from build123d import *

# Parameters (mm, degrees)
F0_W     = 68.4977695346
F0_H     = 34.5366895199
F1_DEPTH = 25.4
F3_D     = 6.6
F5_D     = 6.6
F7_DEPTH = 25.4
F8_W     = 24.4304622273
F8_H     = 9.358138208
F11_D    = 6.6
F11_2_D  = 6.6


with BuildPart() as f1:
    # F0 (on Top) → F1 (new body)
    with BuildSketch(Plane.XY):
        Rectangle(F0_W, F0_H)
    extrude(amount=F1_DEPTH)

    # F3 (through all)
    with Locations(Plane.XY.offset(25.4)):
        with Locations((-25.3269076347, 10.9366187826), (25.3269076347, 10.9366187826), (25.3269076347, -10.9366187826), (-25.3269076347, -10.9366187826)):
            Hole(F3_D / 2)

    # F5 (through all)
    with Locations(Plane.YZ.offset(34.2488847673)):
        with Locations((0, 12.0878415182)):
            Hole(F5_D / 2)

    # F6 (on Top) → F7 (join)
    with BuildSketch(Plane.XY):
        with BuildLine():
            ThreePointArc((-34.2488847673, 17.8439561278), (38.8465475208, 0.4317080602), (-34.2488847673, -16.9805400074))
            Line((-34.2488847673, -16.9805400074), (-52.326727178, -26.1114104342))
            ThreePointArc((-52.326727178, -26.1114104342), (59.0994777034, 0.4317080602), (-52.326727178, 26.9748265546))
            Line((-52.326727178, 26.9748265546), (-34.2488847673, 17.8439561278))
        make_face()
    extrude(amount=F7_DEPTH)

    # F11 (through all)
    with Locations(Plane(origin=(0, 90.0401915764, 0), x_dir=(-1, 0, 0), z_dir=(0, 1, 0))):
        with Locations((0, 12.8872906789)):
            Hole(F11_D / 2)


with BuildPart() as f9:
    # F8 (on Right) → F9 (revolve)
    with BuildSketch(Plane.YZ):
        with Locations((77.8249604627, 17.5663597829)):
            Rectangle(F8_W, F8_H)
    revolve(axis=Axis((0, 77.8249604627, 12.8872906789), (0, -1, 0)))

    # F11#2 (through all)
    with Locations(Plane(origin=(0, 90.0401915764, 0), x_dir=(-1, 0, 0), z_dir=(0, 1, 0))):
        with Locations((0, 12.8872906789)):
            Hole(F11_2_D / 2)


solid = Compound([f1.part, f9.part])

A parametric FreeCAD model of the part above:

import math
import FreeCAD as App
import Part
import Sketcher
from FreeCAD import Vector

doc = App.newDocument("Part")
body = doc.addObject("PartDesign::Body", "Body")

# Sketch on XY plane
sketch1 = body.newObject("Sketcher::SketchObject", "Sketch")
sketch1.AttachmentSupport = (doc.getObject("XY_Plane"), [""])
sketch1.MapMode = "FlatFace"
sketch1.addGeometry([
    Part.LineSegment(Vector(-34, 17, 0), Vector(-34, -17, 0)),
    Part.LineSegment(Vector(-34, -17, 0), Vector(34, -17, 0)),
    Part.LineSegment(Vector(34, -17, 0), Vector(34, 17, 0)),
    Part.LineSegment(Vector(34, 17, 0), Vector(-34, 17, 0)),
], False)
sketch1.addConstraint([
    Sketcher.Constraint("Coincident", 0, 2, 1, 1),
    Sketcher.Constraint("Coincident", 1, 2, 2, 1),
    Sketcher.Constraint("Coincident", 2, 2, 3, 1),
    Sketcher.Constraint("Coincident", 3, 2, 0, 1),
    Sketcher.Constraint("Vertical", 0),
    Sketcher.Constraint("Horizontal", 1),
    Sketcher.Constraint("Vertical", 2),
    Sketcher.Constraint("Horizontal", 3),
    Sketcher.Constraint("Symmetric", 0, 2, 2, 2, -1, 1),
    Sketcher.Constraint("DistanceX", 1, 1, 1, 2, 68.49777),
    Sketcher.Constraint("DistanceY", 0, 2, 0, 1, 34.53669),
])
pad1 = body.newObject("PartDesign::Pad", "Pad")
pad1.Profile = sketch1
pad1.Length = 25.4

# Sketch on XY plane
sketch2 = body.newObject("Sketcher::SketchObject", "Sketch001")
sketch2.AttachmentSupport = (doc.getObject("XY_Plane"), [""])
sketch2.MapMode = "FlatFace"
sketch2.AttachmentOffset = App.Placement(Vector(0, 0, 25.4), App.Rotation())
sketch2.addGeometry([
    Part.Circle(Vector(-25.3, 10.9, 0), Vector(0, 0, 1), 3.3),
    Part.Circle(Vector(25.3, 10.9, 0), Vector(0, 0, 1), 3.3),
    Part.Circle(Vector(25.3, -10.9, 0), Vector(0, 0, 1), 3.3),
    Part.Circle(Vector(-25.3, -10.9, 0), Vector(0, 0, 1), 3.3),
], False)
sketch2.addConstraint([
    Sketcher.Constraint("Equal", 0, 1),
    Sketcher.Constraint("Equal", 1, 2),
    Sketcher.Constraint("Equal", 2, 3),
    Sketcher.Constraint("Symmetric", 0, 3, 2, 3, -1, 1),
    Sketcher.Constraint("Symmetric", 1, 3, 3, 3, -1, 1),
    Sketcher.Constraint("Symmetric", 0, 3, 1, 3, -2),
    Sketcher.Constraint("Diameter", 0, 6.6),
    Sketcher.Constraint("DistanceY", -1, 1, 0, 3, 10.936619),
    Sketcher.Constraint("DistanceX", 0, 3, -1, 1, 25.326908),
])
doc.recompute()
hole = body.newObject("PartDesign::Hole", "Hole")
hole.Profile = sketch2
hole.ThreadType = "None"
hole.Diameter = 6.6
hole.DepthType = "ThroughAll"

# Sketch on YZ plane
sketch3 = body.newObject("Sketcher::SketchObject", "Sketch002")
sketch3.AttachmentSupport = (doc.getObject("YZ_Plane"), [""])
sketch3.MapMode = "FlatFace"
sketch3.AttachmentOffset = App.Placement(Vector(0, 0, 34.248885), App.Rotation())
sketch3.addGeometry(Part.Circle(Vector(0, 12.1, 0), Vector(0, 0, 1), 3.3), False)
sketch3.addConstraint([
    Sketcher.Constraint("PointOnObject", 0, 3, -2),
    Sketcher.Constraint("Diameter", 0, 6.6),
    Sketcher.Constraint("DistanceY", -1, 1, 0, 3, 12.087842),
])
doc.recompute()
hole2 = body.newObject("PartDesign::Hole", "Hole001")
hole2.Profile = sketch3
hole2.ThreadType = "None"
hole2.Diameter = 6.6
hole2.DepthType = "ThroughAll"

# Sketch on XY plane
sketch4 = body.newObject("Sketcher::SketchObject", "Sketch003")
sketch4.AttachmentSupport = (doc.getObject("XY_Plane"), [""])
sketch4.MapMode = "FlatFace"
sketch4.addGeometry([
    Part.ArcOfCircle(Part.Circle(Vector(0, 0, 0), Vector(0, 0, 1), 39), math.radians(-153), math.radians(153)),
    Part.LineSegment(Vector(-34, -17, 0), Vector(-52, -26, 0)),
    Part.ArcOfCircle(Part.Circle(Vector(0, 0, 0), Vector(0, 0, 1), 59), math.radians(-153), math.radians(153)),
    Part.LineSegment(Vector(-52, 27, 0), Vector(-34, 18, 0)),
], False)
sketch4.addConstraint([
    Sketcher.Constraint("Coincident", 0, 1, 1, 1),
    Sketcher.Constraint("Coincident", 1, 2, 2, 1),
    Sketcher.Constraint("Coincident", 2, 2, 3, 1),
    Sketcher.Constraint("Coincident", 3, 2, 0, 2),
    Sketcher.Constraint("Coincident", 2, 3, 0, 3),
    Sketcher.Constraint("Vertical", 1, 2, 2, 2),
    Sketcher.Constraint("Vertical", 0, 1, 3, 2),
    Sketcher.Constraint("Radius", 0, 38.621624),
    Sketcher.Constraint("Radius", 2, 58.874554),
    Sketcher.Constraint("DistanceY", -1, 1, 0, 3, 0.431708),
    Sketcher.Constraint("DistanceY", 0, 1, -1, 1, 16.98054),
    Sketcher.Constraint("DistanceY", 1, 2, -1, 1, 26.11141),
    Sketcher.Constraint("DistanceX", -1, 1, 0, 3, 0.224924),
])
pad2 = body.newObject("PartDesign::Pad", "Pad001")
pad2.Profile = sketch4
pad2.Length = 25.4

# Sketch on XZ plane
sketch5 = body.newObject("Sketcher::SketchObject", "Sketch004")
sketch5.AttachmentSupport = (doc.getObject("XZ_Plane"), [""])
sketch5.MapMode = "FlatFace"
sketch5.AttachmentOffset = App.Placement(Vector(0, 0, -90.040192), App.Rotation())
sketch5.addGeometry(Part.Circle(Vector(0, 12.9, 0), Vector(0, 0, 1), 3.3), False)
sketch5.addConstraint([
    Sketcher.Constraint("PointOnObject", 0, 3, -2),
    Sketcher.Constraint("Diameter", 0, 6.6),
    Sketcher.Constraint("DistanceY", -1, 1, 0, 3, 12.887291),
])
doc.recompute()
hole3 = body.newObject("PartDesign::Hole", "Hole002")
hole3.Profile = sketch5
hole3.ThreadType = "None"
hole3.Diameter = 6.6
hole3.DepthType = "ThroughAll"
hole3.Reversed = True
body2 = doc.addObject("PartDesign::Body", "Body001")

# Sketch on YZ plane
sketch6 = body2.newObject("Sketcher::SketchObject", "Sketch005")
sketch6.AttachmentSupport = (doc.getObject("YZ_Plane001"), [""])
sketch6.MapMode = "FlatFace"
sketch6.addGeometry([
    Part.LineSegment(Vector(66, 22, 0), Vector(66, 13, 0)),
    Part.LineSegment(Vector(66, 13, 0), Vector(90, 13, 0)),
    Part.LineSegment(Vector(90, 13, 0), Vector(90, 22, 0)),
    Part.LineSegment(Vector(90, 22, 0), Vector(66, 22, 0)),
], False)
sketch6.addGeometry(Part.LineSegment(Vector(90, 13, 0), Vector(66, 13, 0)), True)  # axis
sketch6.addConstraint([
    Sketcher.Constraint("Coincident", 0, 2, 1, 1),
    Sketcher.Constraint("Coincident", 1, 2, 2, 1),
    Sketcher.Constraint("Coincident", 2, 2, 3, 1),
    Sketcher.Constraint("Coincident", 3, 2, 0, 1),
    Sketcher.Constraint("Vertical", 0),
    Sketcher.Constraint("Horizontal", 1),
    Sketcher.Constraint("Vertical", 2),
    Sketcher.Constraint("Horizontal", 3),
    Sketcher.Constraint("Horizontal", 4),
    Sketcher.Constraint("Coincident", 4, 1, 1, 2),
    Sketcher.Constraint("Vertical", 3, 2, 4, 2),
    Sketcher.Constraint("DistanceY", 0, 2, 0, 1, 9.358138),
    Sketcher.Constraint("DistanceX", 1, 1, 1, 2, 24.430462),
    Sketcher.Constraint("DistanceX", -1, 1, 0, 2, 65.609729),
    Sketcher.Constraint("DistanceY", -1, 1, 0, 2, 12.887291),
])
revolution = body2.newObject("PartDesign::Revolution", "Revolution")
revolution.Profile = sketch6
revolution.ReferenceAxis = (sketch6, ["Axis0"])
revolution.Angle = 360

# Sketch on XZ plane
sketch7 = body2.newObject("Sketcher::SketchObject", "Sketch006")
sketch7.AttachmentSupport = (doc.getObject("XZ_Plane001"), [""])
sketch7.MapMode = "FlatFace"
sketch7.AttachmentOffset = App.Placement(Vector(0, 0, -90.040192), App.Rotation())
sketch7.addGeometry(Part.Circle(Vector(0, 12.9, 0), Vector(0, 0, 1), 3.3), False)
sketch7.addConstraint([
    Sketcher.Constraint("PointOnObject", 0, 3, -2),
    Sketcher.Constraint("Diameter", 0, 6.6),
    Sketcher.Constraint("DistanceY", -1, 1, 0, 3, 12.887291),
])
doc.recompute()
hole4 = body2.newObject("PartDesign::Hole", "Hole003")
hole4.Profile = sketch7
hole4.ThreadType = "None"
hole4.Diameter = 6.6
hole4.DepthType = "ThroughAll"
hole4.Reversed = True

doc.recompute()
